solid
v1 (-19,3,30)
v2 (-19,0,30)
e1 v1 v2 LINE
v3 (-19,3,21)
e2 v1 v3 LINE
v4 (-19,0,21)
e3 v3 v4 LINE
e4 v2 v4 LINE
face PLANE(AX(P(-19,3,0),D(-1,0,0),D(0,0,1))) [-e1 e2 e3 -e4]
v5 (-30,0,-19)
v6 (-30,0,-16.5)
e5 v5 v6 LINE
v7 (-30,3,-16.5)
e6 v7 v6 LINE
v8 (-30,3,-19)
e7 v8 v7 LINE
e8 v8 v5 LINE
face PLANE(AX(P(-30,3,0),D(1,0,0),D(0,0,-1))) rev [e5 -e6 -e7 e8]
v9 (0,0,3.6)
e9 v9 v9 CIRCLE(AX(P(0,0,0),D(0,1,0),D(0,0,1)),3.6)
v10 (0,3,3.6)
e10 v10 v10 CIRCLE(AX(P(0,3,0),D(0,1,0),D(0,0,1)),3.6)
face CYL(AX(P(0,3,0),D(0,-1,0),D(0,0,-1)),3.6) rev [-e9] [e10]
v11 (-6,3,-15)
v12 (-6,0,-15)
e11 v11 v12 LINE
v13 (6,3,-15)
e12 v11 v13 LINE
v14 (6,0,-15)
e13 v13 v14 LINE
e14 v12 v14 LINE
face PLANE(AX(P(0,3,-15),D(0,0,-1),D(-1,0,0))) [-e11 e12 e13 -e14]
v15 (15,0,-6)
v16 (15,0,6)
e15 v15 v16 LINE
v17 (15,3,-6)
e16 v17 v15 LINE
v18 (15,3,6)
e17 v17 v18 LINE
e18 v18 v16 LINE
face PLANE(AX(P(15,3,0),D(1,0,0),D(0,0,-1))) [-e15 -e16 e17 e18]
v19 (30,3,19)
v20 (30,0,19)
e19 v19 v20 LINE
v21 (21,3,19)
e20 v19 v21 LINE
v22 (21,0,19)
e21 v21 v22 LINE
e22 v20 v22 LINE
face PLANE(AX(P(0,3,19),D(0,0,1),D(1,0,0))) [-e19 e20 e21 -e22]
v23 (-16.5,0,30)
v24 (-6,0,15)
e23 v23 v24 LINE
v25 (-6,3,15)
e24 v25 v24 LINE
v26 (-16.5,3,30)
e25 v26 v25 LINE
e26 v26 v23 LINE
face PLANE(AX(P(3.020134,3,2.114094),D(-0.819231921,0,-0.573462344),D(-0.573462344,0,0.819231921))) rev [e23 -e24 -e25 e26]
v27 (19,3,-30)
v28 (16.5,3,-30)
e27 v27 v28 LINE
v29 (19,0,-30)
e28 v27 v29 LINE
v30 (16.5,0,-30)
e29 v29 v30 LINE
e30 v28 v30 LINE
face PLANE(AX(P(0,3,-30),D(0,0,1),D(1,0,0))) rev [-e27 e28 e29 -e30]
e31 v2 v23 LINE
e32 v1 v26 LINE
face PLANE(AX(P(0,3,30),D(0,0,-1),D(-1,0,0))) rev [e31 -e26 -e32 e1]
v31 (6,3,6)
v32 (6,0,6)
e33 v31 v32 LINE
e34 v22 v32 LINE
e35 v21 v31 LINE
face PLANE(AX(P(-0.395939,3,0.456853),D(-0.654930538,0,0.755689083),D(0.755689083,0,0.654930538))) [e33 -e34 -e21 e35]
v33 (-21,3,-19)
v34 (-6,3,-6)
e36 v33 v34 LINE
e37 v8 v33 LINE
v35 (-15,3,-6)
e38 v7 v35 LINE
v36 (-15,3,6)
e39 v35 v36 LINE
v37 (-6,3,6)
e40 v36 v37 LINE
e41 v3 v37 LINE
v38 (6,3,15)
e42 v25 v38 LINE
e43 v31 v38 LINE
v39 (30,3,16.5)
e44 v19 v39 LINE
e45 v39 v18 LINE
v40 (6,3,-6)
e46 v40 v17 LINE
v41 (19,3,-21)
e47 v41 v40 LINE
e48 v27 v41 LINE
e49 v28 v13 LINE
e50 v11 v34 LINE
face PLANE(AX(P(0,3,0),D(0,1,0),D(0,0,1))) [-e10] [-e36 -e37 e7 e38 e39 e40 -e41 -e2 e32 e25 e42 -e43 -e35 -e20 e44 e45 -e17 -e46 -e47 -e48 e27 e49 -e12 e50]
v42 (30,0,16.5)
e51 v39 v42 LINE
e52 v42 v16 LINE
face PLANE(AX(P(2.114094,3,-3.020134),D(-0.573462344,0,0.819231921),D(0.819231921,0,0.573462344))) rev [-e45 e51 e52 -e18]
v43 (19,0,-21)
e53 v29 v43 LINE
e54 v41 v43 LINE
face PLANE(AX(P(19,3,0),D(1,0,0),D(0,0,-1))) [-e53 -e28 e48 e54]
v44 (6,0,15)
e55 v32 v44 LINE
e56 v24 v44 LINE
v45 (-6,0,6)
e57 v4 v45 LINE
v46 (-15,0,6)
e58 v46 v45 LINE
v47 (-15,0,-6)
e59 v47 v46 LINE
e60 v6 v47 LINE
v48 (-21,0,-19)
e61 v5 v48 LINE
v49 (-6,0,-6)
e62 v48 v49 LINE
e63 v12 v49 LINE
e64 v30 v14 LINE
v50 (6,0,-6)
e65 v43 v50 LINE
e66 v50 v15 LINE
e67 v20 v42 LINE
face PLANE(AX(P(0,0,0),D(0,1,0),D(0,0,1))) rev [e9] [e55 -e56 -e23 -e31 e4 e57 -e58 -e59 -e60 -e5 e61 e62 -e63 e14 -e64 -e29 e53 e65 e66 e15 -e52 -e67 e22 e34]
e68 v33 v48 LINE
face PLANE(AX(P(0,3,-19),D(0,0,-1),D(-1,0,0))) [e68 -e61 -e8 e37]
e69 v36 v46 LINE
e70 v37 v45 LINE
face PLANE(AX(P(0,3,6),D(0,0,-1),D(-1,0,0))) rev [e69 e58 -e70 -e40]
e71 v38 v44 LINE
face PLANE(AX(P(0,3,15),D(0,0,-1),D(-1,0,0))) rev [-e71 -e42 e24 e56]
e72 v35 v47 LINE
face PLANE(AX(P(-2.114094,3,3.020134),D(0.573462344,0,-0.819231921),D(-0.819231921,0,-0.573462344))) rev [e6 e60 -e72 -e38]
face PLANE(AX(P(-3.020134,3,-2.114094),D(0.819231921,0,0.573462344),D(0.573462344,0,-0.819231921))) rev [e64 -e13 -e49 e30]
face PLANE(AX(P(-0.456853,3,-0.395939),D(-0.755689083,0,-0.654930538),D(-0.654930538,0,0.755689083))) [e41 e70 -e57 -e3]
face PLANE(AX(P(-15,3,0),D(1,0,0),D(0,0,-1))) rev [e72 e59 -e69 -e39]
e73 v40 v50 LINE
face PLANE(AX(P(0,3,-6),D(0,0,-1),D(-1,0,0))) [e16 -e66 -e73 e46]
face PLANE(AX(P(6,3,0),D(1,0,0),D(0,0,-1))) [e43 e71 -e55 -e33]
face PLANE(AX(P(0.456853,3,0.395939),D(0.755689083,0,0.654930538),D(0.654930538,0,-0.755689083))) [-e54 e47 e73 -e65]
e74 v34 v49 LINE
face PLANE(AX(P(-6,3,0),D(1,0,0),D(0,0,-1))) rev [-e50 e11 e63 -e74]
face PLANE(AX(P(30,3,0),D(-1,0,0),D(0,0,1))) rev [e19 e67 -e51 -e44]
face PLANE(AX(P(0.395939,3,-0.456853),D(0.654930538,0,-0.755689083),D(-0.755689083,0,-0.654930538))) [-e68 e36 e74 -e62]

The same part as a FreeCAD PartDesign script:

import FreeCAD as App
import Part
import Sketcher

V = App.Vector
Q = App.Units.Quantity

doc = App.newDocument("Part")
body = doc.addObject("PartDesign::Body", "Body")

sketch1 = body.newObject("Sketcher::SketchObject", "Sketch")
sketch1.AttachmentSupport = (doc.getObject("XZ_Plane"), [""])
sketch1.MapMode = "FlatFace"
sketch1.addGeometry([
    Part.LineSegment(V(-6, -6, 0), V(-21, -19, 0)),
    Part.LineSegment(V(-21, -19, 0), V(-30, -19, 0)),
    Part.LineSegment(V(-30, -19, 0), V(-30, -16.5, 0)),
    Part.LineSegment(V(-30, -16.5, 0), V(-15, -6, 0)),
    Part.LineSegment(V(-15, -6, 0), V(-15, 6, 0)),
    Part.LineSegment(V(-15, 6, 0), V(-6, 6, 0)),
    Part.LineSegment(V(-6, 6, 0), V(-19, 21, 0)),
    Part.LineSegment(V(-19, 21, 0), V(-19, 30, 0)),
    Part.LineSegment(V(-19, 30, 0), V(-16.5, 30, 0)),
    Part.LineSegment(V(-16.5, 30, 0), V(-6, 15, 0)),
    Part.LineSegment(V(-6, 15, 0), V(6, 15, 0)),
    Part.LineSegment(V(6, 15, 0), V(6, 6, 0)),
    Part.LineSegment(V(6, 6, 0), V(21, 19, 0)),
    Part.LineSegment(V(21, 19, 0), V(30, 19, 0)),
    Part.LineSegment(V(30, 19, 0), V(30, 16.5, 0)),
    Part.LineSegment(V(30, 16.5, 0), V(15, 6, 0)),
    Part.LineSegment(V(15, 6, 0), V(15, -6, 0)),
    Part.LineSegment(V(15, -6, 0), V(6, -6, 0)),
    Part.LineSegment(V(6, -6, 0), V(19, -21, 0)),
    Part.LineSegment(V(19, -21, 0), V(19, -30, 0)),
    Part.LineSegment(V(19, -30, 0), V(16.5, -30, 0)),
    Part.LineSegment(V(16.5, -30, 0), V(6, -15, 0)),
    Part.LineSegment(V(6, -15, 0), V(-6, -15, 0)),
    Part.LineSegment(V(-6, -15, 0), V(-6, -6, 0)),
    Part.Circle(V(0, 0, 0), V(0, 0, 1), 3.6),
], False)
sketch1.addConstraint([
    Sketcher.Constraint("Coincident", 0, 2, 1, 1),
    Sketcher.Constraint("Coincident", 1, 2, 2, 1),
    Sketcher.Constraint("Coincident", 2, 2, 3, 1),
    Sketcher.Constraint("Coincident", 3, 2, 4, 1),
    Sketcher.Constraint("Coincident", 4, 2, 5, 1),
    Sketcher.Constraint("Coincident", 5, 2, 6, 1),
    Sketcher.Constraint("Coincident", 6, 2, 7, 1),
    Sketcher.Constraint("Coincident", 7, 2, 8, 1),
    Sketcher.Constraint("Coincident", 8, 2, 9, 1),
    Sketcher.Constraint("Coincident", 9, 2, 10, 1),
    Sketcher.Constraint("Coincident", 10, 2, 11, 1),
    Sketcher.Constraint("Coincident", 11, 2, 12, 1),
    Sketcher.Constraint("Coincident", 12, 2, 13, 1),
    Sketcher.Constraint("Coincident", 13, 2, 14, 1),
    Sketcher.Constraint("Coincident", 14, 2, 15, 1),
    Sketcher.Constraint("Coincident", 15, 2, 16, 1),
    Sketcher.Constraint("Coincident", 16, 2, 17, 1),
    Sketcher.Constraint("Coincident", 17, 2, 18, 1),
    Sketcher.Constraint("Coincident", 18, 2, 19, 1),
    Sketcher.Constraint("Coincident", 19, 2, 20, 1),
    Sketcher.Constraint("Coincident", 20, 2, 21, 1),
    Sketcher.Constraint("Coincident", 21, 2, 22, 1),
    Sketcher.Constraint("Coincident", 22, 2, 23, 1),
    Sketcher.Constraint("Coincident", 23, 2, 0, 1),
    Sketcher.Constraint("Horizontal", 1),
    Sketcher.Constraint("Vertical", 2),
    Sketcher.Constraint("Vertical", 4),
    Sketcher.Constraint("Horizontal", 5),
    Sketcher.Constraint("Vertical", 7),
    Sketcher.Constraint("Horizontal", 8),
    Sketcher.Constraint("Horizontal", 10),
    Sketcher.Constraint("Vertical", 11),
    Sketcher.Constraint("Horizontal", 13),
    Sketcher.Constraint("Vertical", 14),
    Sketcher.Constraint("Vertical", 16),
    Sketcher.Constraint("Horizontal", 17),
    Sketcher.Constraint("Vertical", 19),
    Sketcher.Constraint("Horizontal", 20),
    Sketcher.Constraint("Horizontal", 22),
    Sketcher.Constraint("Vertical", 23),
    Sketcher.Constraint("Coincident", 24, 3, -1, 1),
    Sketcher.Constraint("Symmetric", 0, 2, 12, 2, -1, 1),
    Sketcher.Constraint("Symmetric", 2, 2, 14, 2, -1, 1),
    Sketcher.Constraint("Symmetric", 3, 2, 15, 2, -1, 1),
    Sketcher.Constraint("Symmetric", 5, 2, 17, 2, -1, 1),
    Sketcher.Constraint("Symmetric", 6, 2, 18, 2, -1, 1),
    Sketcher.Constraint("Symmetric", 8, 2, 20, 2, -1, 1),
    Sketcher.Constraint("Symmetric", 9, 2, 21, 2, -1, 1),
    Sketcher.Constraint("Symmetric", 11, 2, 23, 2, -1, 1),
    Sketcher.Constraint("Symmetric", 5, 2, 11, 2, -2),
    Sketcher.Constraint("Perpendicular", 0, 6),
    Sketcher.Constraint("Perpendicular", 3, 9),
    Sketcher.Constraint("Horizontal", 11, 2, 15, 2),
    Sketcher.Constraint("Vertical", 5, 2, 9, 2),
    Sketcher.Constraint("Equal", 1, 5),
    Sketcher.Constraint("Equal", 20, 2),
    Sketcher.Constraint("Equal", 22, 4),
    Sketcher.Constraint("Equal", 17, 7),
    Sketcher.Constraint("Equal", 7, 11),
    Sketcher.Constraint("Diameter", 24, Q("7.2 mm")),
    Sketcher.Constraint("DistanceX", 1, 2, 1, 1, Q("9 mm")),
    Sketcher.Constraint("DistanceX", 10, 1, 10, 2, Q("12 mm")),
    Sketcher.Constraint("DistanceX", 8, 1, 8, 2, Q("2.5 mm")),
    Sketcher.Constraint("DistanceX", 0, 2, -1, 1, Q("21 mm")),
    Sketcher.Constraint("DistanceY", 0, 2, -1, 1, Q("19 mm")),
])
pad1 = body.newObject("PartDesign::Pad", "Pad")
pad1.Profile = sketch1
pad1.Length = 3
pad1.Reversed = True

doc.recompute()
